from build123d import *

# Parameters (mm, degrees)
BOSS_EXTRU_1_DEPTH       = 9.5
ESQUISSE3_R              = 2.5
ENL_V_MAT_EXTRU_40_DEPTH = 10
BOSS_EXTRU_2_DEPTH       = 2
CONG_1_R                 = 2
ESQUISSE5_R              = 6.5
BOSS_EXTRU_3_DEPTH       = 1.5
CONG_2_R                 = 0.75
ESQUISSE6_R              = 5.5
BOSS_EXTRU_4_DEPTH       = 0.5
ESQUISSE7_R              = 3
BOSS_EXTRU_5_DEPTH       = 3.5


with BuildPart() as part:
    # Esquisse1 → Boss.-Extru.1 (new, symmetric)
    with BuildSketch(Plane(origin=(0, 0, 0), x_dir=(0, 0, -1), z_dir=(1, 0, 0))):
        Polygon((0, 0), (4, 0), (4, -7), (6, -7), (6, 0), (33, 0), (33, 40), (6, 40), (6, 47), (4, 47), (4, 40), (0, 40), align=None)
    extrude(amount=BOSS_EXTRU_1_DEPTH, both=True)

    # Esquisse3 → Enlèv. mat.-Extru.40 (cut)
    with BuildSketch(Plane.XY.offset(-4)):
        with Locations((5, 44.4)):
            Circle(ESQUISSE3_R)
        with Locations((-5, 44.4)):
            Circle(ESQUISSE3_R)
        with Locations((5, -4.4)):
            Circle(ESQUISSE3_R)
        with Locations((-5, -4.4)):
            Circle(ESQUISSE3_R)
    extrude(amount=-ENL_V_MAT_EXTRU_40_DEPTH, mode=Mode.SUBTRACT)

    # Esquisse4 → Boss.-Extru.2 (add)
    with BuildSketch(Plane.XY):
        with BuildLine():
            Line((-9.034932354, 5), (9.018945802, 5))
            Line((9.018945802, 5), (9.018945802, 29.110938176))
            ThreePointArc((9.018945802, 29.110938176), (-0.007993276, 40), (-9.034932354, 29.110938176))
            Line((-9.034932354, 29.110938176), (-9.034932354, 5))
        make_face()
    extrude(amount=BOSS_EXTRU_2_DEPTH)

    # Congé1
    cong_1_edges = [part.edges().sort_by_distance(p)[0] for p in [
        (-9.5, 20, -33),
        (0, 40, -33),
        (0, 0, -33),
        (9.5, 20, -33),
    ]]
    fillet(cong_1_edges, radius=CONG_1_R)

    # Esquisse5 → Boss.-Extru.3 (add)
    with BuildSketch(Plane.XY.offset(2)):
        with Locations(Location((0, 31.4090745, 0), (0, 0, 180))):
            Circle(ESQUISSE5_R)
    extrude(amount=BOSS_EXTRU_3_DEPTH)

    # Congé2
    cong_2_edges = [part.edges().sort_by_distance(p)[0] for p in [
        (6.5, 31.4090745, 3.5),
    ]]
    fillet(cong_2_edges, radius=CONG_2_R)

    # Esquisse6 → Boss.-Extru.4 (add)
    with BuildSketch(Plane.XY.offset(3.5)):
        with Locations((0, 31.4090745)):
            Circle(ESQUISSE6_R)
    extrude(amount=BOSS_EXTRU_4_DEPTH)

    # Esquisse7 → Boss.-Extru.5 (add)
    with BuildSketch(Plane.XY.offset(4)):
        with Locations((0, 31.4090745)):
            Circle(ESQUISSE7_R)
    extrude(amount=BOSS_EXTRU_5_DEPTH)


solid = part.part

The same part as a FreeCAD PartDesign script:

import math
import FreeCAD as App
import Part
import Sketcher
from FreeCAD import Vector
Q = App.Units.Quantity


def edges_at(feature, points):
    """Names of the edges that pass closest to the given points."""
    edges = feature.Shape.Edges
    near = lambda p: min(range(len(edges)), key=lambda i: edges[i].distToShape(Part.Vertex(*p))[0])
    return sorted({f"Edge{near(p) + 1}" for p in points})

doc = App.newDocument("Part")
params = doc.addObject("Spreadsheet::Sheet", "Params")
for row, (alias, value) in enumerate([
    ("sketch1_width", "7 mm"),
    ("sketch1_width2", "40 mm"),
    ("sketch1_height", "4 mm"),
    ("sketch1_height2", "2 mm"),
    ("sketch1_height3", "27 mm"),
    ("pad1_length", "19 mm"),
    ("sketch2_diameter", "5 mm"),
    ("pocket1_length", "10 mm"),
    ("pad2_length", "2 mm"),
    ("fillet_radius", "2 mm"),
    ("sketch4_diameter", "13 mm"),
    ("pad3_length", "1.5 mm"),
    ("fillet2_radius", "0.75 mm"),
    ("sketch5_diameter", "11 mm"),
    ("pad4_length", "0.5 mm"),
    ("sketch6_diameter", "6 mm"),
    ("pad5_length", "3.5 mm"),
], start=1):
    params.set(f"A{row}", alias)
    params.set(f"B{row}", "=" + value)
    params.setAlias(f"B{row}", alias)

body = doc.addObject("PartDesign::Body", "Body")

# Sketch on YZ plane
sketch1 = body.newObject("Sketcher::SketchObject", "Sketch")
sketch1.AttachmentSupport = (doc.getObject("YZ_Plane"), [""])
sketch1.MapMode = "FlatFace"
sketch1.addGeometry(Part.LineSegment(Vector(0, 0, 0), Vector(0, -4, 0)), False)
sketch1.addGeometry(Part.LineSegment(Vector(0, -4, 0), Vector(-7, -4, 0)), False)
sketch1.addGeometry(Part.LineSegment(Vector(-7, -4, 0), Vector(-7, -6, 0)), False)
sketch1.addGeometry(Part.LineSegment(Vector(-7, -6, 0), Vector(0, -6, 0)), False)
sketch1.addGeometry(Part.LineSegment(Vector(0, -6, 0), Vector(0, -33, 0)), False)
sketch1.addGeometry(Part.LineSegment(Vector(0, -33, 0), Vector(40, -33, 0)), False)
sketch1.addGeometry(Part.LineSegment(Vector(40, -33, 0), Vector(40, -6, 0)), False)
sketch1.addGeometry(Part.LineSegment(Vector(40, -6, 0), Vector(47, -6, 0)), False)
sketch1.addGeometry(Part.LineSegment(Vector(47, -6, 0), Vector(47, -4, 0)), False)
sketch1.addGeometry(Part.LineSegment(Vector(47, -4, 0), Vector(40, -4, 0)), False)
sketch1.addGeometry(Part.LineSegment(Vector(40, -4, 0), Vector(40, 0, 0)), False)
sketch1.addGeometry(Part.LineSegment(Vector(40, 0, 0), Vector(0, 0, 0)), False)
sketch1.addConstraint(Sketcher.Constraint("Coincident", 0, 2, 1, 1))
sketch1.addConstraint(Sketcher.Constraint("Coincident", 1, 2, 2, 1))
sketch1.addConstraint(Sketcher.Constraint("Coincident", 2, 2, 3, 1))
sketch1.addConstraint(Sketcher.Constraint("Coincident", 3, 2, 4, 1))
sketch1.addConstraint(Sketcher.Constraint("Coincident", 4, 2, 5, 1))
sketch1.addConstraint(Sketcher.Constraint("Coincident", 5, 2, 6, 1))
sketch1.addConstraint(Sketcher.Constraint("Coincident", 6, 2, 7, 1))
sketch1.addConstraint(Sketcher.Constraint("Coincident", 7, 2, 8, 1))
sketch1.addConstraint(Sketcher.Constraint("Coincident", 8, 2, 9, 1))
sketch1.addConstraint(Sketcher.Constraint("Coincident", 9, 2, 10, 1))
sketch1.addConstraint(Sketcher.Constraint("Coincident", 10, 2, 11, 1))
sketch1.addConstraint(Sketcher.Constraint("Coincident", 11, 2, 0, 1))
sketch1.addConstraint(Sketcher.Constraint("Vertical", 0))
sketch1.addConstraint(Sketcher.Constraint("Horizontal", 1))
sketch1.addConstraint(Sketcher.Constraint("Vertical", 2))
sketch1.addConstraint(Sketcher.Constraint("Horizontal", 3))
sketch1.addConstraint(Sketcher.Constraint("Vertical", 4))
sketch1.addConstraint(Sketcher.Constraint("Horizontal", 5))
sketch1.addConstraint(Sketcher.Constraint("Vertical", 6))
sketch1.addConstraint(Sketcher.Constraint("Horizontal", 7))
sketch1.addConstraint(Sketcher.Constraint("Vertical", 8))
sketch1.addConstraint(Sketcher.Constraint("Horizontal", 9))
sketch1.addConstraint(Sketcher.Constraint("Vertical", 10))
sketch1.addConstraint(Sketcher.Constraint("Horizontal", 11))
sketch1.addConstraint(Sketcher.Constraint("Coincident", 11, 2, -1, 1))
sketch1.addConstraint(Sketcher.Constraint("PointOnObject", 3, 2, -2))
sketch1.addConstraint(Sketcher.Constraint("Horizontal", 3, 2, 6, 2))
sketch1.addConstraint(Sketcher.Constraint("Horizontal", 1, 2, 8, 2))
sketch1.addConstraint(Sketcher.Constraint("Vertical", 6, 2, 9, 2))
sketch1.addConstraint(Sketcher.Constraint("Equal", 3, 7))
sketch1.addConstraint(Sketcher.Constraint("DistanceX", 1, 2, 1, 1, Q("7 mm")))
sketch1.addConstraint(Sketcher.Constraint("DistanceX", 5, 1, 5, 2, Q("40 mm")))
sketch1.addConstraint(Sketcher.Constraint("DistanceY", 0, 2, 0, 1, Q("4 mm")))
sketch1.addConstraint(Sketcher.Constraint("DistanceY", 2, 2, 2, 1, Q("2 mm")))
sketch1.addConstraint(Sketcher.Constraint("DistanceY", 4, 2, 4, 1, Q("27 mm")))
sketch1.setExpression("Constraints[30]", "Params.sketch1_width")
sketch1.setExpression("Constraints[31]", "Params.sketch1_width2")
sketch1.setExpression("Constraints[32]", "Params.sketch1_height")
sketch1.setExpression("Constraints[33]", "Params.sketch1_height2")
sketch1.setExpression("Constraints[34]", "Params.sketch1_height3")
pad1 = body.newObject("PartDesign::Pad", "Pad")
pad1.Profile = sketch1
pad1.setExpression("Length", "Params.pad1_length")
pad1.Midplane = True

# Sketch on XY plane
sketch2 = body.newObject("Sketcher::SketchObject", "Sketch001")
sketch2.AttachmentSupport = (doc.getObject("XY_Plane"), [""])
sketch2.MapMode = "FlatFace"
sketch2.AttachmentOffset = App.Placement(Vector(0, 0, -4), App.Rotation())
sketch2.addGeometry(Part.Circle(Vector(5, 44.4, 0), Vector(0, 0, 1), 2.5), False)
sketch2.addGeometry(Part.Circle(Vector(-5, 44.4, 0), Vector(0, 0, 1), 2.5), False)
sketch2.addGeometry(Part.Circle(Vector(5, -4.4, 0), Vector(0, 0, 1), 2.5), False)
sketch2.addGeometry(Part.Circle(Vector(-5, -4.4, 0), Vector(0, 0, 1), 2.5), False)
sketch2.addConstraint(Sketcher.Constraint("Equal", 0, 1))
sketch2.addConstraint(Sketcher.Constraint("Equal", 1, 2))
sketch2.addConstraint(Sketcher.Constraint("Equal", 2, 3))
sketch2.addConstraint(Sketcher.Constraint("Symmetric", 0, 3, 1, 3, -2))
sketch2.addConstraint(Sketcher.Constraint("Symmetric", 2, 3, 3, 3, -2))
sketch2.addConstraint(Sketcher.Constraint("Vertical", 0, 3, 2, 3))
sketch2.addConstraint(Sketcher.Constraint("Diameter", 0, Q("5 mm")))
sketch2.addConstraint(Sketcher.Constraint("DistanceX", -1, 1, 0, 3, Q("5 mm")))
sketch2.addConstraint(Sketcher.Constraint("DistanceY", -1, 1, 0, 3, Q("44.4 mm")))
sketch2.addConstraint(Sketcher.Constraint("DistanceY", 2, 3, -1, 1, Q("4.4 mm")))
sketch2.setExpression("Constraints[6]", "Params.sketch2_diameter")
pocket1 = body.newObject("PartDesign::Pocket", "Pocket")
pocket1.Profile = sketch2
pocket1.setExpression("Length", "Params.pocket1_length")

# Sketch on XY plane
sketch3 = body.newObject("Sketcher::SketchObject", "Sketch002")
sketch3.AttachmentSupport = (doc.getObject("XY_Plane"), [""])
sketch3.MapMode = "FlatFace"
sketch3.addGeometry(Part.LineSegment(Vector(-9.034932, 5, 0), Vector(9.018946, 5, 0)), False)
sketch3.addGeometry(Part.LineSegment(Vector(9.018946, 5, 0), Vector(9.018946, 29.110938, 0)), False)
sketch3.addGeometry(Part.ArcOfCircle(Part.Circle(Vector(-0.007993, 30.813841, 0), Vector(0, 0, 1), 9.186159), math.radians(-10.683118), math.radians(190.683118)), False)
sketch3.addGeometry(Part.LineSegment(Vector(-9.034932, 29.110938, 0), Vector(-9.034932, 5, 0)), False)
sketch3.addConstraint(Sketcher.Constraint("Coincident", 0, 2, 1, 1))
sketch3.addConstraint(Sketcher.Constraint("Coincident", 1, 2, 2, 1))
sketch3.addConstraint(Sketcher.Constraint("Coincident", 2, 2, 3, 1))
sketch3.addConstraint(Sketcher.Constraint("Coincident", 3, 2, 0, 1))
sketch3.addConstraint(Sketcher.Constraint("Horizontal", 0))
sketch3.addConstraint(Sketcher.Constraint("Vertical", 1))
sketch3.addConstraint(Sketcher.Constraint("Vertical", 3))
sketch3.addConstraint(Sketcher.Constraint("Horizontal", 1, 2, 2, 2))
sketch3.addConstraint(Sketcher.Constraint("DistanceY", -1, 1, 0, 2, Q("5 mm")))
sketch3.addConstraint(Sketcher.Constraint("Radius", 2, Q("9.186159 mm")))
sketch3.addConstraint(Sketcher.Constraint("DistanceX", 0, 1, 0, 2, Q("18.053878 mm")))
sketch3.addConstraint(Sketcher.Constraint("DistanceY", 1, 1, 1, 2, Q("24.110938 mm")))
sketch3.addConstraint(Sketcher.Constraint("DistanceX", 2, 3, -1, 1, Q("0.007993 mm")))
pad2 = body.newObject("PartDesign::Pad", "Pad001")
pad2.Profile = sketch3
pad2.setExpression("Length", "Params.pad2_length")
doc.recompute()

fillet = body.newObject("PartDesign::Fillet", "Fillet")
fillet.Base = (pad2, edges_at(pad2, [
    (-9.5, 20, -33),
    (0, 40, -33),
    (0, 0, -33),
    (9.5, 20, -33),
]))
fillet.setExpression("Radius", "Params.fillet_radius")

# Sketch on XY plane
sketch4 = body.newObject("Sketcher::SketchObject", "Sketch003")
sketch4.AttachmentSupport = (doc.getObject("XY_Plane"), [""])
sketch4.MapMode = "FlatFace"
sketch4.AttachmentOffset = App.Placement(Vector(0, 0, 2), App.Rotation())
sketch4.addGeometry(Part.Circle(Vector(0, 31.409074, 0), Vector(0, 0, 1), 6.5), False)
sketch4.addConstraint(Sketcher.Constraint("PointOnObject", 0, 3, -2))
sketch4.addConstraint(Sketcher.Constraint("Diameter", 0, Q("13 mm")))
sketch4.addConstraint(Sketcher.Constraint("DistanceY", -1, 1, 0, 3, Q("31.409074 mm")))
sketch4.setExpression("Constraints[1]", "Params.sketch4_diameter")
pad3 = body.newObject("PartDesign::Pad", "Pad002")
pad3.Profile = sketch4
pad3.setExpression("Length", "Params.pad3_length")
doc.recompute()

fillet2 = body.newObject("PartDesign::Fillet", "Fillet001")
fillet2.Base = (pad3, edges_at(pad3, [(6.5, 31.409, 3.5)]))
fillet2.setExpression("Radius", "Params.fillet2_radius")

# Sketch on XY plane
sketch5 = body.newObject("Sketcher::SketchObject", "Sketch004")
sketch5.AttachmentSupport = (doc.getObject("XY_Plane"), [""])
sketch5.MapMode = "FlatFace"
sketch5.AttachmentOffset = App.Placement(Vector(0, 0, 3.5), App.Rotation())
sketch5.addGeometry(Part.Circle(Vector(0, 31.409074, 0), Vector(0, 0, 1), 5.5), False)
sketch5.addConstraint(Sketcher.Constraint("PointOnObject", 0, 3, -2))
sketch5.addConstraint(Sketcher.Constraint("Diameter", 0, Q("11 mm")))
sketch5.addConstraint(Sketcher.Constraint("DistanceY", -1, 1, 0, 3, Q("31.409074 mm")))
sketch5.setExpression("Constraints[1]", "Params.sketch5_diameter")
pad4 = body.newObject("PartDesign::Pad", "Pad003")
pad4.Profile = sketch5
pad4.setExpression("Length", "Params.pad4_length")

# Sketch on XY plane
sketch6 = body.newObject("Sketcher::SketchObject", "Sketch005")
sketch6.AttachmentSupport = (doc.getObject("XY_Plane"), [""])
sketch6.MapMode = "FlatFace"
sketch6.AttachmentOffset = App.Placement(Vector(0, 0, 4), App.Rotation())
sketch6.addGeometry(Part.Circle(Vector(0, 31.409074, 0), Vector(0, 0, 1), 3), False)
sketch6.addConstraint(Sketcher.Constraint("PointOnObject", 0, 3, -2))
sketch6.addConstraint(Sketcher.Constraint("Diameter", 0, Q("6 mm")))
sketch6.addConstraint(Sketcher.Constraint("DistanceY", -1, 1, 0, 3, Q("31.409074 mm")))
sketch6.setExpression("Constraints[1]", "Params.sketch6_diameter")
pad5 = body.newObject("PartDesign::Pad", "Pad004")
pad5.Profile = sketch6
pad5.setExpression("Length", "Params.pad5_length")

doc.recompute()
